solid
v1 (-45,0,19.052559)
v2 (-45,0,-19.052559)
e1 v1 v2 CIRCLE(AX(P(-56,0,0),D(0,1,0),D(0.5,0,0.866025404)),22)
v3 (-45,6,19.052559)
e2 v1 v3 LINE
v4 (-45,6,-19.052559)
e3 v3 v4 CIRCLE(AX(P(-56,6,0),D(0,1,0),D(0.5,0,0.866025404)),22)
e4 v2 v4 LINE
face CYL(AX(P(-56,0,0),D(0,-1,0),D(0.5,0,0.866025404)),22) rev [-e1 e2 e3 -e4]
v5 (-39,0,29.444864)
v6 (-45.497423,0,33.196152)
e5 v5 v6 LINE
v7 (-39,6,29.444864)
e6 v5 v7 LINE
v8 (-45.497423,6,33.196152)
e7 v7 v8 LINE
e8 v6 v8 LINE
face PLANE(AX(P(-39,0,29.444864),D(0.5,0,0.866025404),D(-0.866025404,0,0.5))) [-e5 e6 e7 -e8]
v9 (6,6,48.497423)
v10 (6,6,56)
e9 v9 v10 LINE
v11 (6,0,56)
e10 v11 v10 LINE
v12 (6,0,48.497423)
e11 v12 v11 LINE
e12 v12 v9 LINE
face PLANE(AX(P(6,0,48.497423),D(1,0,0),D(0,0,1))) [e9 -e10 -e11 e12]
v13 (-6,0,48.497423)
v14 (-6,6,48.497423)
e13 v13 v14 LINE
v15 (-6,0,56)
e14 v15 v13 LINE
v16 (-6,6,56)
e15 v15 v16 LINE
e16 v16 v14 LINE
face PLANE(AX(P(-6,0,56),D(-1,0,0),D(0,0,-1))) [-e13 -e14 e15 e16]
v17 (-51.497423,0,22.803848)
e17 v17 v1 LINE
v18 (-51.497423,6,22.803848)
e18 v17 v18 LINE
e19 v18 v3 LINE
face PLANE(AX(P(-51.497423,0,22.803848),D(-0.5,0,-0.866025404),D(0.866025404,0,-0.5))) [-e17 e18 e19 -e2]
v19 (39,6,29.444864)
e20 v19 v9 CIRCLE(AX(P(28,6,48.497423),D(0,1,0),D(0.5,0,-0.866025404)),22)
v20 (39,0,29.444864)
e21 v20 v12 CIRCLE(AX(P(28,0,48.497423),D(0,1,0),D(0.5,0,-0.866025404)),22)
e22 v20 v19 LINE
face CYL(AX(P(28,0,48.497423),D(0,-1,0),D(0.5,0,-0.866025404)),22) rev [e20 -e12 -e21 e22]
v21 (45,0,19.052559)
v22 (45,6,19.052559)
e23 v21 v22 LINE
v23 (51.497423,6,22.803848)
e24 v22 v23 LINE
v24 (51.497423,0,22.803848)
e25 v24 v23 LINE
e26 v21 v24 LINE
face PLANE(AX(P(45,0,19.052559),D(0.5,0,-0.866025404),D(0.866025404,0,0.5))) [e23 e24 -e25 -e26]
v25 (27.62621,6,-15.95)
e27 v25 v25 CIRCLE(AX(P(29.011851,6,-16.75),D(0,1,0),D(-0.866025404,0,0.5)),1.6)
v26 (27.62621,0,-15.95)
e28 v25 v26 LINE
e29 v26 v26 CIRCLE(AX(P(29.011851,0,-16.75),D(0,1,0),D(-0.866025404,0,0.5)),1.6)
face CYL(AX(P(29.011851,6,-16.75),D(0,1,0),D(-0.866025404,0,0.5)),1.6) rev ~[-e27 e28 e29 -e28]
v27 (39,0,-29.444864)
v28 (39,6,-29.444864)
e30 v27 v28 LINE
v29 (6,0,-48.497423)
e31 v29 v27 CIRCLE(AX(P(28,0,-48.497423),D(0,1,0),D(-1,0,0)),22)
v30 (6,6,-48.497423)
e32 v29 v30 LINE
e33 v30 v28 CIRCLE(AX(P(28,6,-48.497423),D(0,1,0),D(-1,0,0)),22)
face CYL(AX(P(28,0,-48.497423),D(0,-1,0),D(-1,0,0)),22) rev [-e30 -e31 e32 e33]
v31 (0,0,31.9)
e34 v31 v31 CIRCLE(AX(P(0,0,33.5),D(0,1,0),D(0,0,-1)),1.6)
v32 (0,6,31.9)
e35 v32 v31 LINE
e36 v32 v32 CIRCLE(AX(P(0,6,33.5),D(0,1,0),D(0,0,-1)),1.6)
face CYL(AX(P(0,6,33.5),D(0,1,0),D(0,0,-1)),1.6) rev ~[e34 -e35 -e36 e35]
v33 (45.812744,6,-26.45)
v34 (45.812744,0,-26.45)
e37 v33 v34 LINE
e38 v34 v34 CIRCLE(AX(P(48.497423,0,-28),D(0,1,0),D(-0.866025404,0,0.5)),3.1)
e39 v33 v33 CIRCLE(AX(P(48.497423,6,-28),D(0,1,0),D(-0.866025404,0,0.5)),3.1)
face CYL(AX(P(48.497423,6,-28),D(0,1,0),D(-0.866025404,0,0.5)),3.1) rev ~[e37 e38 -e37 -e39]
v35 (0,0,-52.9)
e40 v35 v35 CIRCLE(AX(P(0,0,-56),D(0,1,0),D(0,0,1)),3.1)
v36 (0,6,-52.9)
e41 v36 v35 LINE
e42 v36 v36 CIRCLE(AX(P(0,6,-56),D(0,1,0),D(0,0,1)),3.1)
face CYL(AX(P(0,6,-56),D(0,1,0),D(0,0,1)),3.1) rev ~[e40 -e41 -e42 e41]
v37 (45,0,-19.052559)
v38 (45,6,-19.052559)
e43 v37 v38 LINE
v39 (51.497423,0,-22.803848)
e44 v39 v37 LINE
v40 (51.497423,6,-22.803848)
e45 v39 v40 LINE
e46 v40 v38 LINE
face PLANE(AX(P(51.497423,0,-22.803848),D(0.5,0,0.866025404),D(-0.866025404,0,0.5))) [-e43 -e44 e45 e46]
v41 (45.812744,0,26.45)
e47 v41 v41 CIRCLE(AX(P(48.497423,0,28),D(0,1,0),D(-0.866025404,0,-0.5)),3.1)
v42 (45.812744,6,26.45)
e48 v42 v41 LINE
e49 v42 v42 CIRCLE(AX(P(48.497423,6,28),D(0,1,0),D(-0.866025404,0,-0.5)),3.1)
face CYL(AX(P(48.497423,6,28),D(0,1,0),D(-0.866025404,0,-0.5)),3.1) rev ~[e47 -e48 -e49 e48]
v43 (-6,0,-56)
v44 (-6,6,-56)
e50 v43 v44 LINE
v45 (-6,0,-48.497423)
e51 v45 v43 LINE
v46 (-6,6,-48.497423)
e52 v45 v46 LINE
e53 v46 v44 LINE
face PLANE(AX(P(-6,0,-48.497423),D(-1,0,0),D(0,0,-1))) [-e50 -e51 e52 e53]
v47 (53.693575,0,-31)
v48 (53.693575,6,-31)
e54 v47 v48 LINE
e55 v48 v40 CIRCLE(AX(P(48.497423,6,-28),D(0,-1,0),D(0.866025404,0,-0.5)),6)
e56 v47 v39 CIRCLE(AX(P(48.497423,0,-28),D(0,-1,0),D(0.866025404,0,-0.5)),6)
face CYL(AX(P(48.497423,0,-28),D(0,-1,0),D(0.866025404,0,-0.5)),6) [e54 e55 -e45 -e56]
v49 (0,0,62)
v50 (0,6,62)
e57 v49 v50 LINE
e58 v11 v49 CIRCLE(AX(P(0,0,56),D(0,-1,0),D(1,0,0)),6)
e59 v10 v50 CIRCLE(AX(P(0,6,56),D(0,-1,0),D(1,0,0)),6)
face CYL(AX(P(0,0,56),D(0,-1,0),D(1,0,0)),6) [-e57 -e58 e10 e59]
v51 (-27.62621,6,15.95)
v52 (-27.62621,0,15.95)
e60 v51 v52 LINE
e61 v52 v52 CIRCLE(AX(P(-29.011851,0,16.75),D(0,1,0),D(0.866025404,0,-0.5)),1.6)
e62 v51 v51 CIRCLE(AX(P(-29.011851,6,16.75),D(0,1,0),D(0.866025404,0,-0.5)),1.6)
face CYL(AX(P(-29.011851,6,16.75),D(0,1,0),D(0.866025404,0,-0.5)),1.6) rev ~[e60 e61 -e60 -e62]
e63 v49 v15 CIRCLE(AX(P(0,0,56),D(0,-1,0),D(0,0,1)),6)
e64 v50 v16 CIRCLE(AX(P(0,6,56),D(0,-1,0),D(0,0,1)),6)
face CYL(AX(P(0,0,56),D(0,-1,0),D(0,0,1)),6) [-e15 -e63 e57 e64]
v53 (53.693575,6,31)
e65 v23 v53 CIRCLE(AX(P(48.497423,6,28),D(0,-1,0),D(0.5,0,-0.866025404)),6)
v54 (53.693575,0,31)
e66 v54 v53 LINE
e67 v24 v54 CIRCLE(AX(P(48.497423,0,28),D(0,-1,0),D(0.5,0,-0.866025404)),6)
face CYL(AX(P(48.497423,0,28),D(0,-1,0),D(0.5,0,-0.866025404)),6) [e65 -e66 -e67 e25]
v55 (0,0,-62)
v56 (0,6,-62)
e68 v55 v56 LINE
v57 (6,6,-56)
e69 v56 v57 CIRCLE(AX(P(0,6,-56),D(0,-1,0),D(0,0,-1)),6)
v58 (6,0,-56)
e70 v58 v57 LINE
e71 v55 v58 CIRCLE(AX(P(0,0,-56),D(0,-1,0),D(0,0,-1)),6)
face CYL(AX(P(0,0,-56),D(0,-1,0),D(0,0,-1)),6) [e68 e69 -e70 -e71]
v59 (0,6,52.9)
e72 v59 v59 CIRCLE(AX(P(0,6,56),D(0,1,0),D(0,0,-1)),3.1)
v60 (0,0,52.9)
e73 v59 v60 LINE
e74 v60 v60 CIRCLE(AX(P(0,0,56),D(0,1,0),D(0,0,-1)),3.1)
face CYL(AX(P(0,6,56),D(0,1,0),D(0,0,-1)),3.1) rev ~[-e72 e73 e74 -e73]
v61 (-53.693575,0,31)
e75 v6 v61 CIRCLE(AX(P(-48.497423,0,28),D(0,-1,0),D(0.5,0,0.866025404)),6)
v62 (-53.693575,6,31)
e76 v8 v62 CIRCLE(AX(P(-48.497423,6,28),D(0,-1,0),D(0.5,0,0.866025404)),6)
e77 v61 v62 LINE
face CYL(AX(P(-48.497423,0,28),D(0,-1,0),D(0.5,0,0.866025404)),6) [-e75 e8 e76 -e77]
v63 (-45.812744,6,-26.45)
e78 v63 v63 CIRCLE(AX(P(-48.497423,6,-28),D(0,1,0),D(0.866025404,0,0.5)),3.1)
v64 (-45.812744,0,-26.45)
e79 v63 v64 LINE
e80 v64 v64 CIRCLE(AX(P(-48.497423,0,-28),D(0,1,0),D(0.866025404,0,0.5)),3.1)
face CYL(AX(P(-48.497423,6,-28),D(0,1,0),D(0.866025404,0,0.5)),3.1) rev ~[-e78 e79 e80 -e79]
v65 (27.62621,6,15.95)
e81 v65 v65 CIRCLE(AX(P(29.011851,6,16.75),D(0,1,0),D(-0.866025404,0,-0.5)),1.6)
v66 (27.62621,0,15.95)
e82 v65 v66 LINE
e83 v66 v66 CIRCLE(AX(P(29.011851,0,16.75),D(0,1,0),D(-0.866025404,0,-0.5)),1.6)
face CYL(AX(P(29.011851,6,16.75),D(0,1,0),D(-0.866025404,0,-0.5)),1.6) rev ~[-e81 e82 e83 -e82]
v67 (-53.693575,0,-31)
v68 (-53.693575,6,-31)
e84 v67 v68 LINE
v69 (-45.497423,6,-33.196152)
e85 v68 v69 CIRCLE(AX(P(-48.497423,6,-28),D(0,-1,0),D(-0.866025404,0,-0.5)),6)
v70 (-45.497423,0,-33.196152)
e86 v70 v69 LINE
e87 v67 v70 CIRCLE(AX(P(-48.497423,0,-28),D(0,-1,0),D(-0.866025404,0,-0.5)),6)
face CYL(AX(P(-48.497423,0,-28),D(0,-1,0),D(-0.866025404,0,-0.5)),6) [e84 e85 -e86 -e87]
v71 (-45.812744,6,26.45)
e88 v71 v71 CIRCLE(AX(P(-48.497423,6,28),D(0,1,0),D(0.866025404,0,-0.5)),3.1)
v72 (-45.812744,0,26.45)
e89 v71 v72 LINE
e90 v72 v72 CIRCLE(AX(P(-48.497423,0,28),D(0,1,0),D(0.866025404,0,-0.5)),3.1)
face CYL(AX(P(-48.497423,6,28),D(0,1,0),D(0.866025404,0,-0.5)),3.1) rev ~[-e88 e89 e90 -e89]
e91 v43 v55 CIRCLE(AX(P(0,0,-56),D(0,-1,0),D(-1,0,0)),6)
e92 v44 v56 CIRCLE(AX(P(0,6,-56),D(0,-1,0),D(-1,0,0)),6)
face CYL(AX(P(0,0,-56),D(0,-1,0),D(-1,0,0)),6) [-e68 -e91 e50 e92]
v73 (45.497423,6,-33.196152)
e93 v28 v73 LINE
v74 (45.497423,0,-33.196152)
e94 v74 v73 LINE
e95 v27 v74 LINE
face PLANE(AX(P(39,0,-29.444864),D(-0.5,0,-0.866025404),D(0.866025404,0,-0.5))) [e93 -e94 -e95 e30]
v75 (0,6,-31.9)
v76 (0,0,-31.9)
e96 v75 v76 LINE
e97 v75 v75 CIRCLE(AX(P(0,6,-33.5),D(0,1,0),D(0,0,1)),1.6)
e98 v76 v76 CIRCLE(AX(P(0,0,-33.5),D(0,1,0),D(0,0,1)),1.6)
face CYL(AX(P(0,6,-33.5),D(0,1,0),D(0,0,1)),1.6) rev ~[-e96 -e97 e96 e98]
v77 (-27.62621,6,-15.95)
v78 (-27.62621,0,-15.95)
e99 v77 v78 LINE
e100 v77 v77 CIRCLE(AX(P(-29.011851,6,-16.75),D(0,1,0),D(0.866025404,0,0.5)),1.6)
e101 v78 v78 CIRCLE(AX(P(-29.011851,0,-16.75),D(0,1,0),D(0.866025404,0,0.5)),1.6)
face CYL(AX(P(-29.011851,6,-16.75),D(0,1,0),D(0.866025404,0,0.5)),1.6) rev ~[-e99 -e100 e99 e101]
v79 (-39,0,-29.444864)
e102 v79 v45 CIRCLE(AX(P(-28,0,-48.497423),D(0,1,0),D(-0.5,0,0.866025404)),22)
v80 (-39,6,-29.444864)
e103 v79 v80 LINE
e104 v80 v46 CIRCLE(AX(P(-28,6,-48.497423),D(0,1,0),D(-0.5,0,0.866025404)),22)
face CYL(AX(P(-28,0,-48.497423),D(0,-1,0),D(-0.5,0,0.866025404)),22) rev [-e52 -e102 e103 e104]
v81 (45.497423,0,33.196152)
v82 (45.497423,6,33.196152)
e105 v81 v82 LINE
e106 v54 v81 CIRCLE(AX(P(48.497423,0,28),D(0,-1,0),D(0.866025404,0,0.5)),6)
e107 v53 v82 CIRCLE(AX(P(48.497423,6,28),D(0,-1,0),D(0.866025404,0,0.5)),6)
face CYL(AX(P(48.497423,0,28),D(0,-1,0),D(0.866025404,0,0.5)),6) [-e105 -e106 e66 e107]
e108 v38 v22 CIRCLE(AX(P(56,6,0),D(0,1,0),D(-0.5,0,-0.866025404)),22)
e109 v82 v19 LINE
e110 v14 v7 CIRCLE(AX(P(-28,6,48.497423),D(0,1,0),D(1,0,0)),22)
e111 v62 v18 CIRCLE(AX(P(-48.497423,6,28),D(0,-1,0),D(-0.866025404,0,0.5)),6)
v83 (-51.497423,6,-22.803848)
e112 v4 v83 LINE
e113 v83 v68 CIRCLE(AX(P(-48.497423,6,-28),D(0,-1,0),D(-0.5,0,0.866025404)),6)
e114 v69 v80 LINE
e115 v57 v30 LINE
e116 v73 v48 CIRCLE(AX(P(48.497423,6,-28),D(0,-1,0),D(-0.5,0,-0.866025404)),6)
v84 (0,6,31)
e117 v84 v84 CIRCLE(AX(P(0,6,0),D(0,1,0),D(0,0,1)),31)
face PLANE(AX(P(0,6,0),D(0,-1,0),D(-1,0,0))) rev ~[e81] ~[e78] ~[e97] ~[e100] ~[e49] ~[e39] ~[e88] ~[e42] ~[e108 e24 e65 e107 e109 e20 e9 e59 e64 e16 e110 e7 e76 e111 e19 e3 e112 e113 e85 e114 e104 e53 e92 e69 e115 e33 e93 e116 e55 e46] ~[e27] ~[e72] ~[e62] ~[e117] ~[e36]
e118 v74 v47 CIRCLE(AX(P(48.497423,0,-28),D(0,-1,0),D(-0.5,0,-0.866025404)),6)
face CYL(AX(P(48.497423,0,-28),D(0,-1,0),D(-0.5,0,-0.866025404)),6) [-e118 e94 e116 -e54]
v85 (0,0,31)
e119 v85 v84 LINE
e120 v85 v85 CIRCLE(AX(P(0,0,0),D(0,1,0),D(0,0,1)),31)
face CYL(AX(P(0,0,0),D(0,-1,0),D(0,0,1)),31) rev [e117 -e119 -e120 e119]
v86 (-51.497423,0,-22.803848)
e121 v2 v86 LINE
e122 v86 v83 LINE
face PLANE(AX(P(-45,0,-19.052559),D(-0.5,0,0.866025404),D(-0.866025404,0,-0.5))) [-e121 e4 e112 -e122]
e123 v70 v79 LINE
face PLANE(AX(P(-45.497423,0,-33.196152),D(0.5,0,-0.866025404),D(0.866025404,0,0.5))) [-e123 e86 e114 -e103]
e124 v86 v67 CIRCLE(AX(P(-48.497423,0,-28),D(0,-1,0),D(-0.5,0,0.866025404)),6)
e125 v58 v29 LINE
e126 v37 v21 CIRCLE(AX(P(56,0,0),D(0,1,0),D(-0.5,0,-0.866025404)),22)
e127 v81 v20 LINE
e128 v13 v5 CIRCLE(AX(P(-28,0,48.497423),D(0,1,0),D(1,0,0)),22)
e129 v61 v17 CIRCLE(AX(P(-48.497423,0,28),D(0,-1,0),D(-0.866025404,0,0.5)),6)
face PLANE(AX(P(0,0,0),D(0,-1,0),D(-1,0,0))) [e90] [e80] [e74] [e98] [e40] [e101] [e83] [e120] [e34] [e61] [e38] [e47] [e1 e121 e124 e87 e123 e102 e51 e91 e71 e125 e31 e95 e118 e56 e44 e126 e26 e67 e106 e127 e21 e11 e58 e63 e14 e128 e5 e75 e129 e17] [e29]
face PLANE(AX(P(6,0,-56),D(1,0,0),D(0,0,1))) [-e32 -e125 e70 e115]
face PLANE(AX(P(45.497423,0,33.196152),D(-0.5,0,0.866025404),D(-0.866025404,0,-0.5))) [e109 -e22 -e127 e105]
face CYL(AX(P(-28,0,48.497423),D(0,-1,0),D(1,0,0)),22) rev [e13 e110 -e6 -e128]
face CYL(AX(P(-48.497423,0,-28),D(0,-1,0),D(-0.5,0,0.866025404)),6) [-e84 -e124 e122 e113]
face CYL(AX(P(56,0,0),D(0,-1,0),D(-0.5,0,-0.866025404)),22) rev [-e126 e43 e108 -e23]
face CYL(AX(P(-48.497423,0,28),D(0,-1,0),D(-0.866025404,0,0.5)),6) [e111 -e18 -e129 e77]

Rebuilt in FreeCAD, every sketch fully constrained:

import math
import FreeCAD as App
import Part
import Sketcher

V = App.Vector
Q = App.Units.Quantity

doc = App.newDocument("Part")
params = doc.addObject("Spreadsheet::Sheet", "Params")
for row, (alias, value) in enumerate([
    ("sketch1_diameter", "62 mm"),
    ("sketch1_radius", "6 mm"),
    ("sketch1_radius2", "22 mm"),
    ("pad1_length", "6 mm"),
    ("sketch2_diameter", "3.2 mm"),
    ("sketch2_diameter2", "6.2 mm"),
    ("pocket1_length", "6 mm"),
], start=1):
    params.set(f"A{row}", alias)
    params.set(f"B{row}", "=" + value)
    params.setAlias(f"B{row}", alias)

body = doc.addObject("PartDesign::Body", "Body")

# Sketch on XZ plane
sketch1 = body.newObject("Sketcher::SketchObject", "Sketch")
sketch1.AttachmentSupport = (doc.getObject("XZ_Plane"), [""])
sketch1.MapMode = "FlatFace"
sketch1.addGeometry([
    Part.LineSegment(V(6, -48.497423, 0), V(6, -56, 0)),  # 0
    Part.ArcOfCircle(Part.Circle(V(0, -56, 0), V(0, 0, 1), 6), math.radians(-90), math.radians(0)),  # 1
    Part.ArcOfCircle(Part.Circle(V(0, -56, 0), V(0, 0, 1), 6), math.radians(180), math.radians(270)),  # 2
    Part.LineSegment(V(-6, -56, 0), V(-6, -48.497423, 0)),  # 3
    Part.ArcOfCircle(Part.Circle(V(-28, -48.497423, 0), V(0, 0, 1), 22), math.radians(0), math.radians(120)),  # 4
    Part.LineSegment(V(-39, -29.444864, 0), V(-45.497423, -33.196152, 0)),  # 5
    Part.ArcOfCircle(Part.Circle(V(-48.497423, -28, 0), V(0, 0, 1), 6), math.radians(-150), math.radians(-60)),  # 6
    Part.ArcOfCircle(Part.Circle(V(-48.497423, -28, 0), V(0, 0, 1), 6), math.radians(120), math.radians(210)),  # 7
    Part.LineSegment(V(-51.497423, -22.803848, 0), V(-45, -19.052559, 0)),  # 8
    Part.ArcOfCircle(Part.Circle(V(-56, 0, 0), V(0, 0, 1), 22), math.radians(-60), math.radians(60)),  # 9
    Part.LineSegment(V(-45, 19.052559, 0), V(-51.497423, 22.803848, 0)),  # 10
    Part.ArcOfCircle(Part.Circle(V(-48.497423, 28, 0), V(0, 0, 1), 6), math.radians(150), math.radians(240)),  # 11
    Part.ArcOfCircle(Part.Circle(V(-48.497423, 28, 0), V(0, 0, 1), 6), math.radians(60), math.radians(150)),  # 12
    Part.LineSegment(V(-45.497423, 33.196152, 0), V(-39, 29.444864, 0)),  # 13
    Part.ArcOfCircle(Part.Circle(V(-28, 48.497423, 0), V(0, 0, 1), 22), math.radians(-120), math.radians(0)),  # 14
    Part.LineSegment(V(-6, 48.497423, 0), V(-6, 56, 0)),  # 15
    Part.ArcOfCircle(Part.Circle(V(0, 56, 0), V(0, 0, 1), 6), math.radians(90), math.radians(180)),  # 16
    Part.ArcOfCircle(Part.Circle(V(0, 56, 0), V(0, 0, 1), 6), math.radians(0), math.radians(90)),  # 17
    Part.LineSegment(V(6, 56, 0), V(6, 48.497423, 0)),  # 18
    Part.ArcOfCircle(Part.Circle(V(28, 48.497423, 0), V(0, 0, 1), 22), math.radians(180), math.radians(300)),  # 19
    Part.LineSegment(V(39, 29.444864, 0), V(45.497423, 33.196152, 0)),  # 20
    Part.ArcOfCircle(Part.Circle(V(48.497423, 28, 0), V(0, 0, 1), 6), math.radians(30), math.radians(120)),  # 21
    Part.ArcOfCircle(Part.Circle(V(48.497423, 28, 0), V(0, 0, 1), 6), math.radians(-60), math.radians(30)),  # 22
    Part.LineSegment(V(51.497423, 22.803848, 0), V(45, 19.052559, 0)),  # 23
    Part.ArcOfCircle(Part.Circle(V(56, 0, 0), V(0, 0, 1), 22), math.radians(120), math.radians(240)),  # 24
    Part.LineSegment(V(45, -19.052559, 0), V(51.497423, -22.803848, 0)),  # 25
    Part.ArcOfCircle(Part.Circle(V(48.497423, -28, 0), V(0, 0, 1), 6), math.radians(-30), math.radians(60)),  # 26
    Part.ArcOfCircle(Part.Circle(V(48.497423, -28, 0), V(0, 0, 1), 6), math.radians(-120), math.radians(-30)),  # 27
    Part.LineSegment(V(45.497423, -33.196152, 0), V(39, -29.444864, 0)),  # 28
    Part.ArcOfCircle(Part.Circle(V(28, -48.497423, 0), V(0, 0, 1), 22), math.radians(60), math.radians(180)),  # 29
    Part.Circle(V(0, 0, 0), V(0, 0, 1), 31),  # 30
], False)
sketch1.addConstraint([
    Sketcher.Constraint("Tangent", 0, 2, 1, 2),
    Sketcher.Constraint("Tangent", 1, 1, 2, 2),
    Sketcher.Constraint("Tangent", 2, 1, 3, 1),
    Sketcher.Constraint("Tangent", 3, 2, 4, 1),
    Sketcher.Constraint("Tangent", 4, 2, 5, 1),
    Sketcher.Constraint("Tangent", 5, 2, 6, 2),
    Sketcher.Constraint("Tangent", 6, 1, 7, 2),
    Sketcher.Constraint("Tangent", 7, 1, 8, 1),
    Sketcher.Constraint("Tangent", 8, 2, 9, 1),
    Sketcher.Constraint("Tangent", 9, 2, 10, 1),
    Sketcher.Constraint("Tangent", 10, 2, 11, 2),
    Sketcher.Constraint("Tangent", 11, 1, 12, 2),
    Sketcher.Constraint("Tangent", 12, 1, 13, 1),
    Sketcher.Constraint("Tangent", 13, 2, 14, 1),
    Sketcher.Constraint("Tangent", 14, 2, 15, 1),
    Sketcher.Constraint("Tangent", 15, 2, 16, 2),
    Sketcher.Constraint("Tangent", 16, 1, 17, 2),
    Sketcher.Constraint("Tangent", 17, 1, 18, 1),
    Sketcher.Constraint("Tangent", 18, 2, 19, 1),
    Sketcher.Constraint("Tangent", 19, 2, 20, 1),
    Sketcher.Constraint("Tangent", 20, 2, 21, 2),
    Sketcher.Constraint("Tangent", 21, 1, 22, 2),
    Sketcher.Constraint("Tangent", 22, 1, 23, 1),
    Sketcher.Constraint("Tangent", 23, 2, 24, 1),
    Sketcher.Constraint("Tangent", 24, 2, 25, 1),
    Sketcher.Constraint("Tangent", 25, 2, 26, 2),
    Sketcher.Constraint("Tangent", 26, 1, 27, 2),
    Sketcher.Constraint("Tangent", 27, 1, 28, 1),
    Sketcher.Constraint("Tangent", 28, 2, 29, 1),
    Sketcher.Constraint("Tangent", 29, 2, 0, 1),
    Sketcher.Constraint("Vertical", 0),
    Sketcher.Constraint("Vertical", 3),
    Sketcher.Constraint("Vertical", 15),
    Sketcher.Constraint("Vertical", 18),
    Sketcher.Constraint("Coincident", 30, 3, -1, 1),
    Sketcher.Constraint("Equal", 1, 2),
    Sketcher.Constraint("Equal", 2, 6),
    Sketcher.Constraint("Equal", 6, 7),
    Sketcher.Constraint("Equal", 4, 9),
    Sketcher.Constraint("Equal", 7, 11),
    Sketcher.Constraint("Equal", 11, 12),
    Sketcher.Constraint("Equal", 9, 14),
    Sketcher.Constraint("Equal", 12, 16),
    Sketcher.Constraint("Equal", 16, 17),
    Sketcher.Constraint("Equal", 14, 19),
    Sketcher.Constraint("Equal", 17, 21),
    Sketcher.Constraint("Equal", 21, 22),
    Sketcher.Constraint("Equal", 19, 24),
    Sketcher.Constraint("Equal", 22, 26),
    Sketcher.Constraint("Equal", 26, 27),
    Sketcher.Constraint("Equal", 24, 29),
    Sketcher.Constraint("Symmetric", 1, 3, 16, 3, -1, 1),
    Sketcher.Constraint("Symmetric", 6, 3, 21, 3, -1, 1),
    Sketcher.Constraint("Symmetric", 9, 3, 24, 3, -1, 1),
    Sketcher.Constraint("Symmetric", 11, 3, 26, 3, -1, 1),
    Sketcher.Constraint("Symmetric", 14, 3, 19, 3, -2),
    Sketcher.Constraint("Symmetric", 11, 3, 21, 3, -2),
    Sketcher.Constraint("PointOnObject", 9, 3, -1),
    Sketcher.Constraint("PointOnObject", 1, 1, -2),
    Sketcher.Constraint("PointOnObject", 16, 1, -2),
    Sketcher.Constraint("Parallel", 5, 8),
    Sketcher.Constraint("Parallel", 10, 13),
    Sketcher.Constraint("Parallel", 25, 28),
    Sketcher.Constraint("Horizontal", 11, 1, 21, 1),
    Sketcher.Constraint("Horizontal", 6, 1, 26, 1),
    Sketcher.Constraint("Vertical", 6, 1, 11, 1),
    Sketcher.Constraint("Equal", 5, 8),
    Sketcher.Constraint("Diameter", 30, 62.0),
    Sketcher.Constraint("Radius", 1, 6.0),
    Sketcher.Constraint("Radius", 4, 22.0),
    Sketcher.Constraint("Angle", 5, Q("-150 deg")),
    Sketcher.Constraint("DistanceY", 1, 3, -1, 1, 56.0),
    Sketcher.Constraint("DistanceY", 6, 3, -1, 1, 28.0),
    Sketcher.Constraint("DistanceY", 6, 1, -1, 1, 31.0),
])
sketch1.setExpression("Constraints[67]", "Params.sketch1_diameter")
sketch1.setExpression("Constraints[68]", "Params.sketch1_radius")
sketch1.setExpression("Constraints[69]", "Params.sketch1_radius2")
pad1 = body.newObject("PartDesign::Pad", "Pad")
pad1.Profile = sketch1
pad1.setExpression("Length", "Params.pad1_length")
pad1.Reversed = True

# Sketch on XZ plane
sketch2 = body.newObject("Sketcher::SketchObject", "Sketch001")
sketch2.AttachmentSupport = (doc.getObject("XZ_Plane"), [""])
sketch2.MapMode = "FlatFace"
sketch2.AttachmentOffset = App.Placement(V(0, 0, -6), App.Rotation())
sketch2.addGeometry([
    Part.Circle(V(0, -33.5, 0), V(0, 0, 1), 1.6),
    Part.Circle(V(0, -56, 0), V(0, 0, 1), 3.1),
], False)
sketch2.addConstraint([
    Sketcher.Constraint("PointOnObject", 0, 3, -2),
    Sketcher.Constraint("PointOnObject", 1, 3, -2),
    Sketcher.Constraint("Diameter", 0, 3.2),
    Sketcher.Constraint("Diameter", 1, 6.2),
    Sketcher.Constraint("DistanceY", 1, 3, -1, 1, 56.0),
    Sketcher.Constraint("DistanceY", 0, 3, -1, 1, 33.5),
])
sketch2.setExpression("Constraints[2]", "Params.sketch2_diameter")
sketch2.setExpression("Constraints[3]", "Params.sketch2_diameter2")
pocket1 = body.newObject("PartDesign::Pocket", "Pocket")
pocket1.Profile = sketch2
pocket1.setExpression("Length", "Params.pocket1_length")
pocket1.Reversed = True
doc.recompute()

polarpattern = body.newObject("PartDesign::PolarPattern", "PolarPattern")
polarpattern.Originals = [pocket1]
polarpattern.Axis = (doc.getObject("Y_Axis"), [""])
polarpattern.Angle = 360
polarpattern.Occurrences = 6
body.Tip = polarpattern

doc.recompute()
